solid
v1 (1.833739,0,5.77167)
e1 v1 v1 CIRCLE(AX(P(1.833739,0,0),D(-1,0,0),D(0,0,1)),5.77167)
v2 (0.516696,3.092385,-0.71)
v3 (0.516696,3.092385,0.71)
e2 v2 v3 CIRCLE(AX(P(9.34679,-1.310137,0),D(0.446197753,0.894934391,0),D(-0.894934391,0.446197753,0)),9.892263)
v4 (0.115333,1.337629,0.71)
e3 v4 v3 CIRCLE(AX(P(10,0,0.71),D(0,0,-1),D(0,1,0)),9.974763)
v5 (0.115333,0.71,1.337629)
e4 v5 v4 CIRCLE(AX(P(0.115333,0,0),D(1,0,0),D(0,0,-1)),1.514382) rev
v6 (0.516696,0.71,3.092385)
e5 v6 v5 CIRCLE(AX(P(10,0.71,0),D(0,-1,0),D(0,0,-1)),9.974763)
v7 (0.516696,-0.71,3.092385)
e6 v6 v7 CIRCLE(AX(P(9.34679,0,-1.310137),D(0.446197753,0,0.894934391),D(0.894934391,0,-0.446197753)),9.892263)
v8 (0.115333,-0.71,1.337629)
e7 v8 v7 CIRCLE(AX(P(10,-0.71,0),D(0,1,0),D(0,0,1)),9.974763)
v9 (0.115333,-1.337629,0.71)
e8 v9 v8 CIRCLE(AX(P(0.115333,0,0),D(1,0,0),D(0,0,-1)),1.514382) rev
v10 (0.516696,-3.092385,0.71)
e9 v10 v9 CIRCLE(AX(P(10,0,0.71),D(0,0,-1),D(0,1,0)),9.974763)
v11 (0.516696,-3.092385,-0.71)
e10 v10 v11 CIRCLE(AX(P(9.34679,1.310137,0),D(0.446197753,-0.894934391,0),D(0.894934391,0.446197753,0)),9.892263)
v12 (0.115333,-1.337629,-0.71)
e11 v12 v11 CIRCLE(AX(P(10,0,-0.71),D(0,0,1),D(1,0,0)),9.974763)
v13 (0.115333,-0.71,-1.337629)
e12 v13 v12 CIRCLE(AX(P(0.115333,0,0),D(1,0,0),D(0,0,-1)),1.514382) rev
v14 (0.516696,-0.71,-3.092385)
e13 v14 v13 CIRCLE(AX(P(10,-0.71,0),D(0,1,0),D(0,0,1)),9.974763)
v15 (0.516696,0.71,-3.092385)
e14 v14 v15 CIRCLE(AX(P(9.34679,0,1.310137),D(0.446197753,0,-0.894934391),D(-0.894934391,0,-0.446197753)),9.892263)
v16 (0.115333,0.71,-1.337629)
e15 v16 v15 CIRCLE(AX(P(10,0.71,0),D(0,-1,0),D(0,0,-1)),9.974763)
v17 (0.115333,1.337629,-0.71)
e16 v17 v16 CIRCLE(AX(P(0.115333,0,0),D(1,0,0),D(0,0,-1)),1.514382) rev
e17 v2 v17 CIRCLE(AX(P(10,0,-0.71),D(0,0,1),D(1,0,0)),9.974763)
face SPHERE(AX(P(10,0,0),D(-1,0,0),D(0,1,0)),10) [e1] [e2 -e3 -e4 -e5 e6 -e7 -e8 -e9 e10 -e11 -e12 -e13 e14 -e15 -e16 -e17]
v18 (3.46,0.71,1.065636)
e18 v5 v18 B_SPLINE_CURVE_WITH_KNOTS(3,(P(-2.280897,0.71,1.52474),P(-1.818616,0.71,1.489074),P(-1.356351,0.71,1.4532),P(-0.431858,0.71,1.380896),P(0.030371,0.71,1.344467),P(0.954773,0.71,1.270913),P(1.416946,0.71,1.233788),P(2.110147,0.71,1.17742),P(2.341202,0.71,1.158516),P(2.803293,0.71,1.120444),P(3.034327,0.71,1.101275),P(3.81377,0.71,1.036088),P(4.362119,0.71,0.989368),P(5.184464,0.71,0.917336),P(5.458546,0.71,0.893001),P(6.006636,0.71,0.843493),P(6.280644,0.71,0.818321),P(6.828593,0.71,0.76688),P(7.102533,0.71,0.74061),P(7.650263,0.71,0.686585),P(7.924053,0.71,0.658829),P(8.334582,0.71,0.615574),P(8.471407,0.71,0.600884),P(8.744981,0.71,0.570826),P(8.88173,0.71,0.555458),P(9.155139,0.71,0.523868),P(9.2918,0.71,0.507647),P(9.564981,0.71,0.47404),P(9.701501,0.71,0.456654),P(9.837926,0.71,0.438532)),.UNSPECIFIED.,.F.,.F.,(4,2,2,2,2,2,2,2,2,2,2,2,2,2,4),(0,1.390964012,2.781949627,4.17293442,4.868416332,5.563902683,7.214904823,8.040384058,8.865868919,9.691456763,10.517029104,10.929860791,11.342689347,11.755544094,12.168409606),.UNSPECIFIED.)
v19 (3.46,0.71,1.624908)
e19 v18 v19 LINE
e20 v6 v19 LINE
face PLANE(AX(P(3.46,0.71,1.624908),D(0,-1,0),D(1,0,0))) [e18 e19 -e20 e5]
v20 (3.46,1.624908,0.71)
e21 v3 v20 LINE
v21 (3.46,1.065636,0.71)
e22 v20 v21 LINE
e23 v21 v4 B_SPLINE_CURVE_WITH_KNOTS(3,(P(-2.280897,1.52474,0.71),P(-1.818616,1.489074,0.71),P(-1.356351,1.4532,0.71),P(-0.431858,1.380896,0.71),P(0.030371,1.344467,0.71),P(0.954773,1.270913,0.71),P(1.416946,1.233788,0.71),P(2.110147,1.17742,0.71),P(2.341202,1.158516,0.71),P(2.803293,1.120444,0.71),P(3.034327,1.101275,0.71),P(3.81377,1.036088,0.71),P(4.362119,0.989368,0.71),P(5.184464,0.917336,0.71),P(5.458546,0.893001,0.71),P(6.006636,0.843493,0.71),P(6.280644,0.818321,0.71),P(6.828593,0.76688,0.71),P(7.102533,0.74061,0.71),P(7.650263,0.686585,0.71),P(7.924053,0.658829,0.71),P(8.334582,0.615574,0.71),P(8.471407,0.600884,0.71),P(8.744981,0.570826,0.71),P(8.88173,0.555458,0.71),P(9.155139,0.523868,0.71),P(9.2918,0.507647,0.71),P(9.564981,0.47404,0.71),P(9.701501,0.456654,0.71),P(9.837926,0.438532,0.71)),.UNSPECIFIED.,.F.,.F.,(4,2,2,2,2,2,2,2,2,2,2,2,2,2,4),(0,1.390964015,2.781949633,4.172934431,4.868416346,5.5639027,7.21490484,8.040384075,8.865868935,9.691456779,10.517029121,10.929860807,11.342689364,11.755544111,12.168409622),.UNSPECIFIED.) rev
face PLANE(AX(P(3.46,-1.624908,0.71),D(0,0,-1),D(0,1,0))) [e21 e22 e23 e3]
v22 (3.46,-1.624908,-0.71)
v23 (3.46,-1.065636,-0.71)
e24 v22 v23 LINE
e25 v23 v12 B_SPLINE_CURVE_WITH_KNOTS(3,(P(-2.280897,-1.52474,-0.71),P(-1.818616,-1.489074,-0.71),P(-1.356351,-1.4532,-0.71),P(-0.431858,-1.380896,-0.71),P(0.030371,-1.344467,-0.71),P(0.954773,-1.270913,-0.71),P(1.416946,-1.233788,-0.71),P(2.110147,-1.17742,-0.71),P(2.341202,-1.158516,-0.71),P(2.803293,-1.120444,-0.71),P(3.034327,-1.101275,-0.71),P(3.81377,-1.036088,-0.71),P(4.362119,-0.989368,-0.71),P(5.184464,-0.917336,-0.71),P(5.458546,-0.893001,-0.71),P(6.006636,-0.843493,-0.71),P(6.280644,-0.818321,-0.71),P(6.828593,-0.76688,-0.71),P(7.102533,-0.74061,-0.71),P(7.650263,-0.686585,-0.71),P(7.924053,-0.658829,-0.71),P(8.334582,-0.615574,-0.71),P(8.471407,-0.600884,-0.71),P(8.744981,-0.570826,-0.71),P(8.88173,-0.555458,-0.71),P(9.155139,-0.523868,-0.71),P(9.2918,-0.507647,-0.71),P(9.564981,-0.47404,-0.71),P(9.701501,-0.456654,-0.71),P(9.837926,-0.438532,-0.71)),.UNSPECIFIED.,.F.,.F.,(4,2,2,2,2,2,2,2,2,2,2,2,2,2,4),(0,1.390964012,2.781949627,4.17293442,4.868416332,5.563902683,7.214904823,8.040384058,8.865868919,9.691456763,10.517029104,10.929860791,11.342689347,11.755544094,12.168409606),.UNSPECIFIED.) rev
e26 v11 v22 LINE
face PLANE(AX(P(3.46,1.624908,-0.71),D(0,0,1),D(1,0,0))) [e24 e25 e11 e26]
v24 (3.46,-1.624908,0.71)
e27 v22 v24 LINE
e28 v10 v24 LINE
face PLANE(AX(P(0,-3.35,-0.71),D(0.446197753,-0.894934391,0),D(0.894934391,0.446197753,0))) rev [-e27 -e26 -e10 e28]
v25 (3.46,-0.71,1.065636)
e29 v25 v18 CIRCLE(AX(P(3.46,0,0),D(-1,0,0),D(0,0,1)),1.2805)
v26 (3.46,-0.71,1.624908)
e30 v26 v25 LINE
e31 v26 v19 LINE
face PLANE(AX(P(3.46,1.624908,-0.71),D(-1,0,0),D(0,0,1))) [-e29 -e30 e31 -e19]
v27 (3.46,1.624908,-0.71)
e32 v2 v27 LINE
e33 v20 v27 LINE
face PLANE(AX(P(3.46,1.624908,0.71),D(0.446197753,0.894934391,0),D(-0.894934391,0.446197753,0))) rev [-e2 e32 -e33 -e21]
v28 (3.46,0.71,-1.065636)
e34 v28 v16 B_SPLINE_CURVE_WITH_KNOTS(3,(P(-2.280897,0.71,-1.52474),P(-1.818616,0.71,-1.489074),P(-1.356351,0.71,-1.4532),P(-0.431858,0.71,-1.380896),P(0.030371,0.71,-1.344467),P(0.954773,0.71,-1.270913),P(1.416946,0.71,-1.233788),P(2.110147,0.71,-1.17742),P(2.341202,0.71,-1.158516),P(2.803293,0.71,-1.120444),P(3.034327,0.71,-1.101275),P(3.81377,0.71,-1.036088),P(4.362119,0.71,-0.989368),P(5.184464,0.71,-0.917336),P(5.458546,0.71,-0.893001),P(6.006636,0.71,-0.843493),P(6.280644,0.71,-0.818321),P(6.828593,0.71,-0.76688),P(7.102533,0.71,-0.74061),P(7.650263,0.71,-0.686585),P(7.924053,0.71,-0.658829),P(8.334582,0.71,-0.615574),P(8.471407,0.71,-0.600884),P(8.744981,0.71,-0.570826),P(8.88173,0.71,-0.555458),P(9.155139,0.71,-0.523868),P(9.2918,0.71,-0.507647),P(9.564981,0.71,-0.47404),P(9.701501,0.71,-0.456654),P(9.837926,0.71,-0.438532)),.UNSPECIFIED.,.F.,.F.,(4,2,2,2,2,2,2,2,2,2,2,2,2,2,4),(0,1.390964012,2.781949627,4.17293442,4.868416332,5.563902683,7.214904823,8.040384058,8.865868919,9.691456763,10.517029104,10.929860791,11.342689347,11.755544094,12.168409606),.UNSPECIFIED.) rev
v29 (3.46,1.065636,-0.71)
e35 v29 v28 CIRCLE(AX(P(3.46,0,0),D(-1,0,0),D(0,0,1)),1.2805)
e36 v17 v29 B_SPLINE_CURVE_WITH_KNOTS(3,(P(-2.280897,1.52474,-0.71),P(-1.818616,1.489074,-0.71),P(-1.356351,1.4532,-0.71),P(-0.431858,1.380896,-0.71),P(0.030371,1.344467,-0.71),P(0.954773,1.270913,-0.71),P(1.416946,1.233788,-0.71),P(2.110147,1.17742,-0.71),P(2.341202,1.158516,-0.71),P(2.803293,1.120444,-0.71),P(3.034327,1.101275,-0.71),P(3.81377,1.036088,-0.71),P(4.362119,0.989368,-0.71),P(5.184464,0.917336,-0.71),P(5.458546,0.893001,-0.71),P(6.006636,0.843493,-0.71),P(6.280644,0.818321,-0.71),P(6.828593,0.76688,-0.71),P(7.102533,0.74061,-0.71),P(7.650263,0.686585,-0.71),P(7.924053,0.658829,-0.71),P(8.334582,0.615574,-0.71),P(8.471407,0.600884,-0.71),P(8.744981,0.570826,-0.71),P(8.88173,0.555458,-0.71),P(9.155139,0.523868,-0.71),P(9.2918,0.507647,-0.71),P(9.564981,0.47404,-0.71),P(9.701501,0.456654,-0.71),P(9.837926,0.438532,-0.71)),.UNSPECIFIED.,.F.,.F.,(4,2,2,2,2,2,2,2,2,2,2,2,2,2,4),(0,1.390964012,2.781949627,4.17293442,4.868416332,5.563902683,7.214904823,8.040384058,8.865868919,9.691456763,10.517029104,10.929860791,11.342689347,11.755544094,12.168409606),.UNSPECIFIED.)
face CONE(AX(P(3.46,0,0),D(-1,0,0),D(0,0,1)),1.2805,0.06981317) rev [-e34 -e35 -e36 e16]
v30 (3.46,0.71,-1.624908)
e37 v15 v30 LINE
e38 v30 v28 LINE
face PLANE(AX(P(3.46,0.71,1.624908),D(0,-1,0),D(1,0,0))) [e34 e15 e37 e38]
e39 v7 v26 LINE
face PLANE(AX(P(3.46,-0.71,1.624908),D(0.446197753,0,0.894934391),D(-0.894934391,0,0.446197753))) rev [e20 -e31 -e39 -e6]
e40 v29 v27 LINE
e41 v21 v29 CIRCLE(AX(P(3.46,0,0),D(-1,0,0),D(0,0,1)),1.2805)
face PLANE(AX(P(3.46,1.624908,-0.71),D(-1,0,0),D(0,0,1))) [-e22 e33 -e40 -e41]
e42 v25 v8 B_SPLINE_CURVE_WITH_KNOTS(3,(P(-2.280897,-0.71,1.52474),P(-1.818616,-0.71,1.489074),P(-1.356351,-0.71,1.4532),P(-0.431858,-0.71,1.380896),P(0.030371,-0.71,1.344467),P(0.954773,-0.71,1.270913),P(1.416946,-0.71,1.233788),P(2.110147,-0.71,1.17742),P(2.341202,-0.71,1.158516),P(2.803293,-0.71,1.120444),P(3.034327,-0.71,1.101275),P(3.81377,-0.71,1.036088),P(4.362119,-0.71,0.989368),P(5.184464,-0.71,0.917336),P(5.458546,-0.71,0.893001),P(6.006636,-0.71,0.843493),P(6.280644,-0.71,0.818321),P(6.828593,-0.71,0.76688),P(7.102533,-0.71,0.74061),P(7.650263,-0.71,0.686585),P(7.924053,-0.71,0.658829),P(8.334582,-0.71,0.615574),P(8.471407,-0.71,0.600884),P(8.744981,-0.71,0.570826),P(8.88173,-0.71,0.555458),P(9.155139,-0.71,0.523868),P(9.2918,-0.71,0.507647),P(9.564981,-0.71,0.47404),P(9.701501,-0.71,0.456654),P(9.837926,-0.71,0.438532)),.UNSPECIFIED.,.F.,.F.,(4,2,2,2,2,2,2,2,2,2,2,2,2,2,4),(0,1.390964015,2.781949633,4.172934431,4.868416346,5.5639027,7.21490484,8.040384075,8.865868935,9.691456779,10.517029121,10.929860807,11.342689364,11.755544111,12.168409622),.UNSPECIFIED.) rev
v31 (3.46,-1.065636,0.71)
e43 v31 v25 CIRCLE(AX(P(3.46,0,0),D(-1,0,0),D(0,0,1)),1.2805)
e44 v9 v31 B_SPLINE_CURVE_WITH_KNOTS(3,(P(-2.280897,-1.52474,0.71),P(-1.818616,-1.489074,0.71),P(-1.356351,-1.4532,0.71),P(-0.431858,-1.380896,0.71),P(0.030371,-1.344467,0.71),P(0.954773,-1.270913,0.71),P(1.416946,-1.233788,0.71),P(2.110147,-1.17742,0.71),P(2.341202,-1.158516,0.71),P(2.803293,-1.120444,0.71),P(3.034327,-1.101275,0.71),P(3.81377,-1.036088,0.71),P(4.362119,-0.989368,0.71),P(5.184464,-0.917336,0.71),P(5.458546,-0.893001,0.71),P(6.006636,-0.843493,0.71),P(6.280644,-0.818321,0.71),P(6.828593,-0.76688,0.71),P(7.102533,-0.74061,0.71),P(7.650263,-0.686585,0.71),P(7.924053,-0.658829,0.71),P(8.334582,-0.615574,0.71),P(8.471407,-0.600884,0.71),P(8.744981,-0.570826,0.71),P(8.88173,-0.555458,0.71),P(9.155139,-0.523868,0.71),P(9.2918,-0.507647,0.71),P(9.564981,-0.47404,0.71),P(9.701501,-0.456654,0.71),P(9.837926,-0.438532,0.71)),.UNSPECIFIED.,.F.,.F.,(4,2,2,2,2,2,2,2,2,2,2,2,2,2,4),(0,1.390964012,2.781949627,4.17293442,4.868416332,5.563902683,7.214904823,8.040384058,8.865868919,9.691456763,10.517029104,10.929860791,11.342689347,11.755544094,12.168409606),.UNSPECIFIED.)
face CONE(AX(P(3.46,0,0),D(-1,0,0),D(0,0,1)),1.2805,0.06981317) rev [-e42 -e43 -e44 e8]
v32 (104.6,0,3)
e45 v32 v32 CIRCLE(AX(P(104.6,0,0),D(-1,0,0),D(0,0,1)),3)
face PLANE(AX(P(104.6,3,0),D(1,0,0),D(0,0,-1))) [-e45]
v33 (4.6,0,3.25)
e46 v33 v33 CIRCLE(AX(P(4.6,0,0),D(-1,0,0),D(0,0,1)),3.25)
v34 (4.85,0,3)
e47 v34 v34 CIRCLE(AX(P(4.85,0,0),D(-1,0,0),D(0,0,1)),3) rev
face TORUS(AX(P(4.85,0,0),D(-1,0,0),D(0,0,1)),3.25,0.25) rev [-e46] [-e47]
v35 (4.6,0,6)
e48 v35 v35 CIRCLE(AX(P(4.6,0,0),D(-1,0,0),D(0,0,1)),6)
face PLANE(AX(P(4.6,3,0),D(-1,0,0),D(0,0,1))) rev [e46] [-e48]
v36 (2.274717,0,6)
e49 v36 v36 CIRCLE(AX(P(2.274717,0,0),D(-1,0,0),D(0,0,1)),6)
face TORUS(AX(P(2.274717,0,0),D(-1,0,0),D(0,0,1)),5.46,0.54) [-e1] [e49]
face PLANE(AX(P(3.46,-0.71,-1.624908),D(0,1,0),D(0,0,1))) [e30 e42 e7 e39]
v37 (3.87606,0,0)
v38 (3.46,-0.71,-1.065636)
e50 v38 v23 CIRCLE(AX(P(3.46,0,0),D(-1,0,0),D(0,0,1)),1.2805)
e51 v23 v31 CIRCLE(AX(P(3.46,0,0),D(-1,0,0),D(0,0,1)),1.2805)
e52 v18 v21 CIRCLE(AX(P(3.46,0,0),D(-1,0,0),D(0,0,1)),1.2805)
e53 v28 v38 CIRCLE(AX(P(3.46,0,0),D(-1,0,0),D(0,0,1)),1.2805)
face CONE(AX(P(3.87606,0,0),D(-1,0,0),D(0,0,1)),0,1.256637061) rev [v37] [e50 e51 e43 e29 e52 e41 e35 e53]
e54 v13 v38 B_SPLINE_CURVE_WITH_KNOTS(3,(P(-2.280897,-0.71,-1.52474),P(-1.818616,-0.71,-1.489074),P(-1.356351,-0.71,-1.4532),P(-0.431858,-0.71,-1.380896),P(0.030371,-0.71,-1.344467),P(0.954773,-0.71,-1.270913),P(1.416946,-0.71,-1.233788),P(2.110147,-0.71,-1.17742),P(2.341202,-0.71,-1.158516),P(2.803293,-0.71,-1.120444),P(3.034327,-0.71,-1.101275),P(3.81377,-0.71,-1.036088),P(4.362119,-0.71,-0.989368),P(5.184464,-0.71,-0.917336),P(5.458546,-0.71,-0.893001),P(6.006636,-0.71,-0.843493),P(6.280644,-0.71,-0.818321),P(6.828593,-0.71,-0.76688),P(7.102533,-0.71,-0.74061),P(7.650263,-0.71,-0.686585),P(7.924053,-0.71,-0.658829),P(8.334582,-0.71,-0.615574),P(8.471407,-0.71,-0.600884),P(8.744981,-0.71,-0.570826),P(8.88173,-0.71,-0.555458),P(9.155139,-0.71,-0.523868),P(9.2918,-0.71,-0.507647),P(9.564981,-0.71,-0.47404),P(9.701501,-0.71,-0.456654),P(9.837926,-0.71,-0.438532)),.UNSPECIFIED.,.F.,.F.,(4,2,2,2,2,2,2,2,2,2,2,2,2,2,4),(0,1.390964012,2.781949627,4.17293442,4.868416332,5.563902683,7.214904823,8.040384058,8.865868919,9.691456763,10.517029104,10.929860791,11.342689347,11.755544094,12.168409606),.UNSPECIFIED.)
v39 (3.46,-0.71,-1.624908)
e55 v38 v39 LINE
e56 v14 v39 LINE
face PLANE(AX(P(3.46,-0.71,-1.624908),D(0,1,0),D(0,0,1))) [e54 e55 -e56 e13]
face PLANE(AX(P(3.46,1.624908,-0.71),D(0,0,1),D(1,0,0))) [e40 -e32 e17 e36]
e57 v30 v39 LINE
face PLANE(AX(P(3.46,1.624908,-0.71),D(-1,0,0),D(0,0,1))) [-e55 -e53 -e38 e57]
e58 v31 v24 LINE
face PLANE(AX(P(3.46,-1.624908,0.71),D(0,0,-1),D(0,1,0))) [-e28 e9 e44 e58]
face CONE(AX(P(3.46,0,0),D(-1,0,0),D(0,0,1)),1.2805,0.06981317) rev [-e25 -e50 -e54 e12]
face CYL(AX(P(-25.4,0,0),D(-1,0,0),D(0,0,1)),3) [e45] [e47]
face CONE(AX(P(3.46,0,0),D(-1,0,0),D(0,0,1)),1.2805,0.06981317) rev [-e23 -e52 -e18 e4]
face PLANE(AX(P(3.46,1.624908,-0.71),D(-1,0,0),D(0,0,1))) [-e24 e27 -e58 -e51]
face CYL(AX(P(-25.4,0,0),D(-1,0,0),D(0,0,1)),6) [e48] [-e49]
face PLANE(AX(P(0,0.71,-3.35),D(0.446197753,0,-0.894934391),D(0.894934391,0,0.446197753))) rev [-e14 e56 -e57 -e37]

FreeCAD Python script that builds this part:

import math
import FreeCAD as App
import Part
import Sketcher

V = App.Vector
Q = App.Units.Quantity


def edges_at(feature, points):
    """Names of the edges that pass closest to the given points."""
    edges = feature.Shape.Edges
    near = lambda p: min(range(len(edges)), key=lambda i: edges[i].distToShape(Part.Vertex(*p))[0])
    return sorted({f"Edge{near(p) + 1}" for p in points})


def add_polygon(sketch, points):
    """Adds a closed chain of lines whose ends are joined by coincident constraints."""
    first, n = sketch.GeometryCount, len(points)
    for a, b in zip(points, points[1:] + points[:1]):
        sketch.addGeometry(Part.LineSegment(App.Vector(*a, 0), App.Vector(*b, 0)), False)
    for i in range(n):
        sketch.addConstraint(Sketcher.Constraint("Coincident", first + i, 2, first + (i + 1) % n, 1))

doc = App.newDocument("Part")
body = doc.addObject("PartDesign::Body", "Body")

# Sketch on XY plane
sketch1 = body.newObject("Sketcher::SketchObject", "Sketch")
sketch1.AttachmentSupport = (doc.getObject("XY_Plane"), [""])
sketch1.MapMode = "FlatFace"
sketch1.addGeometry(Part.LineSegment(V(4.6, 3, 0), V(4.6, 6, 0)), False)
sketch1.addGeometry(Part.LineSegment(V(4.6, 6, 0), V(2.274717, 6, 0)), False)
sketch1.addGeometry(Part.ArcOfCircle(Part.Circle(V(2.274717, 5.46, 0), V(0, 0, 1), 0.54), math.radians(90), math.radians(144.748469)), False)
sketch1.addGeometry(Part.ArcOfCircle(Part.Circle(V(10, 0, 0), V(0, 0, 1), 10), math.radians(144.748468), math.radians(180)), False)
sketch1.addGeometry(Part.LineSegment(V(0, 0, 0), V(104.6, 0, 0)), False)
sketch1.addGeometry(Part.LineSegment(V(104.6, 0, 0), V(104.6, 3, 0)), False)
sketch1.addGeometry(Part.LineSegment(V(104.6, 3, 0), V(4.6, 3, 0)), False)
sketch1.addConstraint(Sketcher.Constraint("Coincident", 0, 2, 1, 1))
sketch1.addConstraint(Sketcher.Constraint("Tangent", 1, 2, 2, 1))
sketch1.addConstraint(Sketcher.Constraint("Tangent", 2, 2, 3, 1))
sketch1.addConstraint(Sketcher.Constraint("Coincident", 3, 2, 4, 1))
sketch1.addConstraint(Sketcher.Constraint("Coincident", 4, 2, 5, 1))
sketch1.addConstraint(Sketcher.Constraint("Coincident", 5, 2, 6, 1))
sketch1.addConstraint(Sketcher.Constraint("Coincident", 6, 2, 0, 1))
sketch1.addConstraint(Sketcher.Constraint("Vertical", 0))
sketch1.addConstraint(Sketcher.Constraint("Horizontal", 1))
sketch1.addConstraint(Sketcher.Constraint("Horizontal", 4))
sketch1.addConstraint(Sketcher.Constraint("Vertical", 5))
sketch1.addConstraint(Sketcher.Constraint("Horizontal", 6))
sketch1.addConstraint(Sketcher.Constraint("Coincident", 3, 2, -1, 1))
sketch1.addConstraint(Sketcher.Constraint("PointOnObject", 3, 3, -1))
sketch1.addConstraint(Sketcher.Constraint("Equal", 0, 5))
sketch1.addConstraint(Sketcher.Constraint("Radius", 3, 10.0))
sketch1.addConstraint(Sketcher.Constraint("DistanceX", 6, 2, 6, 1, 100.0))
sketch1.addConstraint(Sketcher.Constraint("DistanceY", 0, 1, 0, 2, 3.0))
sketch1.addConstraint(Sketcher.Constraint("Radius", 2, 0.54))
sketch1.addConstraint(Sketcher.Constraint("DistanceX", 4, 1, 4, 2, 104.6))
revolution = body.newObject("PartDesign::Revolution", "Revolution")
revolution.Profile = sketch1
revolution.ReferenceAxis = (sketch1, ["H_Axis"])
revolution.Angle = 360
doc.recompute()

fillet = body.newObject("PartDesign::Fillet", "Fillet")
fillet.Base = (revolution, edges_at(revolution, [(4.6, -3, 0)]))
fillet.Radius = 0.25

# Sketch on YZ plane
sketch2 = body.newObject("Sketcher::SketchObject", "Sketch001")
sketch2.AttachmentSupport = (doc.getObject("YZ_Plane"), [""])
sketch2.MapMode = "FlatFace"
add_polygon(sketch2, [(3.35, 0.71), (-3.35, 0.71), (-3.35, -0.71), (3.35, -0.71)])  # lines 0-3
sketch2.addConstraint(Sketcher.Constraint("Horizontal", 0))
sketch2.addConstraint(Sketcher.Constraint("Vertical", 1))
sketch2.addConstraint(Sketcher.Constraint("Horizontal", 2))
sketch2.addConstraint(Sketcher.Constraint("Vertical", 3))
sketch2.addConstraint(Sketcher.Constraint("Symmetric", 0, 2, 2, 2, -1, 1))
sketch2.addConstraint(Sketcher.Constraint("DistanceX", 0, 2, 0, 1, 6.7))
sketch2.addConstraint(Sketcher.Constraint("DistanceY", 1, 2, 1, 1, 1.42))

# Sketch on YZ plane
sketch3 = body.newObject("Sketcher::SketchObject", "Sketch002")
sketch3.AttachmentSupport = (doc.getObject("YZ_Plane"), [""])
sketch3.MapMode = "FlatFace"
sketch3.AttachmentOffset = App.Placement(V(0, 0, 3.46), App.Rotation())
add_polygon(sketch3, [(1.624908, 0.71), (-1.624908, 0.71), (-1.624908, -0.71), (1.624908, -0.71)])  # lines 0-3
sketch3.addConstraint(Sketcher.Constraint("Horizontal", 0))
sketch3.addConstraint(Sketcher.Constraint("Vertical", 1))
sketch3.addConstraint(Sketcher.Constraint("Horizontal", 2))
sketch3.addConstraint(Sketcher.Constraint("Vertical", 3))
sketch3.addConstraint(Sketcher.Constraint("Symmetric", 0, 2, 2, 2, -1, 1))
sketch3.addConstraint(Sketcher.Constraint("DistanceY", 1, 2, 1, 1, 1.42))
sketch3.addConstraint(Sketcher.Constraint("DistanceX", 0, 2, 0, 1, 3.249816))

subtractiveloft = body.newObject("PartDesign::SubtractiveLoft", "SubtractiveLoft")
subtractiveloft.Profile = sketch2
subtractiveloft.Sections = [sketch3]
doc.recompute()

polarpattern = body.newObject("PartDesign::PolarPattern", "PolarPattern")
polarpattern.Originals = [subtractiveloft]
polarpattern.Axis = (doc.getObject("X_Axis"), [""])
polarpattern.Angle = 90
polarpattern.Occurrences = 2
body.Tip = polarpattern

# Sketch on XY plane
sketch4 = body.newObject("Sketcher::SketchObject", "Sketch003")
sketch4.AttachmentSupport = (doc.getObject("XY_Plane"), [""])
sketch4.MapMode = "FlatFace"
add_polygon(sketch4, [(0, 1.522447), (0, 0), (3.87606, 0), (3.46, 1.2805)])  # lines 0-3
sketch4.addConstraint(Sketcher.Constraint("Vertical", 0))
sketch4.addConstraint(Sketcher.Constraint("Horizontal", 1))
sketch4.addConstraint(Sketcher.Constraint("Coincident", 0, 2, -1, 1))
sketch4.addConstraint(Sketcher.Constraint("Angle", 2, Q("108 deg")))
sketch4.addConstraint(Sketcher.Constraint("Angle", 3, Q("176 deg")))
sketch4.addConstraint(Sketcher.Constraint("DistanceX", -1, 1, 2, 2, 3.46))
sketch4.addConstraint(Sketcher.Constraint("DistanceX", 1, 1, 1, 2, 3.87606))
groove = body.newObject("PartDesign::Groove", "Groove")
groove.Profile = sketch4
groove.ReferenceAxis = (sketch4, ["H_Axis"])
groove.Angle = 360

doc.recompute()
